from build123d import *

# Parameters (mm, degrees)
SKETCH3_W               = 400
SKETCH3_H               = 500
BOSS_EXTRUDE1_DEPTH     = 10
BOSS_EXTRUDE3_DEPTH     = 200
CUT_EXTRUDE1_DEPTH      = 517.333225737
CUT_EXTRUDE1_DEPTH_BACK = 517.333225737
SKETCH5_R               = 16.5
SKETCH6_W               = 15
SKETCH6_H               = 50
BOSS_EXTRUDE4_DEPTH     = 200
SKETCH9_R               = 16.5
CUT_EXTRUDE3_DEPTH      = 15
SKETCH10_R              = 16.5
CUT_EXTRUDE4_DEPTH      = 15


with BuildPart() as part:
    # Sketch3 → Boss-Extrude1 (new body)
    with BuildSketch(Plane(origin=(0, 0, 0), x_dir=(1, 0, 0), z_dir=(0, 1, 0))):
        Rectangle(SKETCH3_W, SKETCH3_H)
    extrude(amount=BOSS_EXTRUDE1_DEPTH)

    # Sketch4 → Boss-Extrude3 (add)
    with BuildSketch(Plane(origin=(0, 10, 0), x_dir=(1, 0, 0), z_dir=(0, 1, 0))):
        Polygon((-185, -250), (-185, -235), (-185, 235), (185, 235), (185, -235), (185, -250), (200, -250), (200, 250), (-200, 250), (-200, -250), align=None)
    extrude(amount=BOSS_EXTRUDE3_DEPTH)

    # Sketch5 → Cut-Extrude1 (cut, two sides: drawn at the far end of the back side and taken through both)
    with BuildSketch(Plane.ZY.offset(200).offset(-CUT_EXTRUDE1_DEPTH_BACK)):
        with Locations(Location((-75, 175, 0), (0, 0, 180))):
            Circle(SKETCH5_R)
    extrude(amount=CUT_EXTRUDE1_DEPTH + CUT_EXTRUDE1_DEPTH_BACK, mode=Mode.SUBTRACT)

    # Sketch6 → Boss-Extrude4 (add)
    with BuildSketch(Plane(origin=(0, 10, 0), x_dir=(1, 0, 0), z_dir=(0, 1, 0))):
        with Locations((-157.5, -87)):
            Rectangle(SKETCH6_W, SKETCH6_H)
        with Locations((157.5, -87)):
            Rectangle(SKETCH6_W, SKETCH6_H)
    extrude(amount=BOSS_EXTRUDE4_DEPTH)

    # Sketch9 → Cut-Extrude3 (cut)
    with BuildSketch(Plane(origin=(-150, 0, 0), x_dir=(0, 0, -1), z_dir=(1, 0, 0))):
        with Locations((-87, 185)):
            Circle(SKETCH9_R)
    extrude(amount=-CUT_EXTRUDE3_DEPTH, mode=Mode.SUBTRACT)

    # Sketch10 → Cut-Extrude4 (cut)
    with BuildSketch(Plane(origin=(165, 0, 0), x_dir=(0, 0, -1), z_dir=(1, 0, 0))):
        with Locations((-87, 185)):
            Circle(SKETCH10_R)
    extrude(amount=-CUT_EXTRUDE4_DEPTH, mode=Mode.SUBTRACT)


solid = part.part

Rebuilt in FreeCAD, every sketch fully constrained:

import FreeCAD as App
import Part
import Sketcher
from FreeCAD import Vector
Q = App.Units.Quantity

doc = App.newDocument("Part")
params = doc.addObject("Spreadsheet::Sheet", "Params")
for row, (alias, value) in enumerate([
    ("sketch1_width", "400 mm"),
    ("sketch1_height", "500 mm"),
    ("pad1_length", "10 mm"),
    ("sketch2_width", "370 mm"),
    ("sketch2_width2", "15 mm"),
    ("sketch2_height", "485 mm"),
    ("sketch2_height2", "500 mm"),
    ("pad2_length", "200 mm"),
    ("sketch3_diameter", "33 mm"),
    ("sketch4_width", "15 mm"),
    ("sketch4_height", "50 mm"),
    ("pad3_length", "200 mm"),
    ("sketch5_diameter", "33 mm"),
    ("pocket2_length", "15 mm"),
    ("sketch6_diameter", "33 mm"),
    ("pocket3_length", "15 mm"),
], start=1):
    params.set(f"A{row}", alias)
    params.set(f"B{row}", "=" + value)
    params.setAlias(f"B{row}", alias)

body = doc.addObject("PartDesign::Body", "Body")

# Sketch on XZ plane
sketch1 = body.newObject("Sketcher::SketchObject", "Sketch")
sketch1.AttachmentSupport = (doc.getObject("XZ_Plane"), [""])
sketch1.MapMode = "FlatFace"
sketch1.addGeometry([
    Part.LineSegment(Vector(-200, -250, 0), Vector(-200, 250, 0)),
    Part.LineSegment(Vector(-200, 250, 0), Vector(200, 250, 0)),
    Part.LineSegment(Vector(200, 250, 0), Vector(200, -250, 0)),
    Part.LineSegment(Vector(200, -250, 0), Vector(-200, -250, 0)),
], False)
sketch1.addConstraint([
    Sketcher.Constraint("Coincident", 0, 2, 1, 1),
    Sketcher.Constraint("Coincident", 1, 2, 2, 1),
    Sketcher.Constraint("Coincident", 2, 2, 3, 1),
    Sketcher.Constraint("Coincident", 3, 2, 0, 1),
    Sketcher.Constraint("Vertical", 0),
    Sketcher.Constraint("Horizontal", 1),
    Sketcher.Constraint("Vertical", 2),
    Sketcher.Constraint("Horizontal", 3),
    Sketcher.Constraint("Symmetric", 0, 2, 2, 2, -1, 1),
    Sketcher.Constraint("DistanceX", 1, 1, 1, 2, Q("400 mm")),
    Sketcher.Constraint("DistanceY", 0, 1, 0, 2, Q("500 mm")),
])
sketch1.setExpression("Constraints[9]", "Params.sketch1_width")
sketch1.setExpression("Constraints[10]", "Params.sketch1_height")
pad1 = body.newObject("PartDesign::Pad", "Pad")
pad1.Profile = sketch1
pad1.setExpression("Length", "Params.pad1_length")
pad1.Reversed = True

# Sketch on XZ plane
sketch2 = body.newObject("Sketcher::SketchObject", "Sketch001")
sketch2.AttachmentSupport = (doc.getObject("XZ_Plane"), [""])
sketch2.MapMode = "FlatFace"
sketch2.AttachmentOffset = App.Placement(Vector(0, 0, -10), App.Rotation())
sketch2.addGeometry([
    Part.LineSegment(Vector(-185, 250, 0), Vector(-185, -235, 0)),  # 0
    Part.LineSegment(Vector(-185, -235, 0), Vector(185, -235, 0)),  # 1
    Part.LineSegment(Vector(185, -235, 0), Vector(185, 250, 0)),  # 2
    Part.LineSegment(Vector(185, 250, 0), Vector(200, 250, 0)),  # 3
    Part.LineSegment(Vector(200, 250, 0), Vector(200, -250, 0)),  # 4
    Part.LineSegment(Vector(200, -250, 0), Vector(-200, -250, 0)),  # 5
    Part.LineSegment(Vector(-200, -250, 0), Vector(-200, 250, 0)),  # 6
    Part.LineSegment(Vector(-200, 250, 0), Vector(-185, 250, 0)),  # 7
], False)
sketch2.addConstraint([
    Sketcher.Constraint("Coincident", 0, 2, 1, 1),
    Sketcher.Constraint("Coincident", 1, 2, 2, 1),
    Sketcher.Constraint("Coincident", 2, 2, 3, 1),
    Sketcher.Constraint("Coincident", 3, 2, 4, 1),
    Sketcher.Constraint("Coincident", 4, 2, 5, 1),
    Sketcher.Constraint("Coincident", 5, 2, 6, 1),
    Sketcher.Constraint("Coincident", 6, 2, 7, 1),
    Sketcher.Constraint("Coincident", 7, 2, 0, 1),
    Sketcher.Constraint("Vertical", 0),
    Sketcher.Constraint("Horizontal", 1),
    Sketcher.Constraint("Vertical", 2),
    Sketcher.Constraint("Horizontal", 3),
    Sketcher.Constraint("Vertical", 4),
    Sketcher.Constraint("Horizontal", 5),
    Sketcher.Constraint("Vertical", 6),
    Sketcher.Constraint("Horizontal", 7),
    Sketcher.Constraint("Symmetric", 3, 2, 5, 2, -1, 1),
    Sketcher.Constraint("Symmetric", 2, 2, 7, 2, -2),
    Sketcher.Constraint("DistanceX", 1, 1, 1, 2, Q("370 mm")),
    Sketcher.Constraint("DistanceX", 3, 1, 3, 2, Q("15 mm")),
    Sketcher.Constraint("DistanceY", 0, 2, 0, 1, Q("485 mm")),
    Sketcher.Constraint("DistanceY", 4, 2, 4, 1, Q("500 mm")),
])
sketch2.setExpression("Constraints[18]", "Params.sketch2_width")
sketch2.setExpression("Constraints[19]", "Params.sketch2_width2")
sketch2.setExpression("Constraints[20]", "Params.sketch2_height")
sketch2.setExpression("Constraints[21]", "Params.sketch2_height2")
pad2 = body.newObject("PartDesign::Pad", "Pad001")
pad2.Profile = sketch2
pad2.setExpression("Length", "Params.pad2_length")
pad2.Reversed = True

# Sketch on YZ plane
sketch3 = body.newObject("Sketcher::SketchObject", "Sketch002")
sketch3.AttachmentSupport = (doc.getObject("YZ_Plane"), [""])
sketch3.MapMode = "FlatFace"
sketch3.AttachmentOffset = App.Placement(Vector(0, 0, -200), App.Rotation())
sketch3.addGeometry(Part.Circle(Vector(175, -75, 0), Vector(0, 0, 1), 16.5), False)
sketch3.addConstraint([
    Sketcher.Constraint("Diameter", 0, Q("33 mm")),
    Sketcher.Constraint("DistanceX", -1, 1, 0, 3, Q("175 mm")),
    Sketcher.Constraint("DistanceY", 0, 3, -1, 1, Q("75 mm")),
])
sketch3.setExpression("Constraints[0]", "Params.sketch3_diameter")
pocket1 = body.newObject("PartDesign::Pocket", "Pocket")
pocket1.Profile = sketch3
pocket1.Type = "ThroughAll"
pocket1.Midplane = True

# Sketch on XZ plane
sketch4 = body.newObject("Sketcher::SketchObject", "Sketch003")
sketch4.AttachmentSupport = (doc.getObject("XZ_Plane"), [""])
sketch4.MapMode = "FlatFace"
sketch4.AttachmentOffset = App.Placement(Vector(0, 0, -10), App.Rotation())
sketch4.addGeometry([
    Part.LineSegment(Vector(-165, 62, 0), Vector(-165, 112, 0)),  # 0
    Part.LineSegment(Vector(-165, 112, 0), Vector(-150, 112, 0)),  # 1
    Part.LineSegment(Vector(-150, 112, 0), Vector(-150, 62, 0)),  # 2
    Part.LineSegment(Vector(-150, 62, 0), Vector(-165, 62, 0)),  # 3
    Part.LineSegment(Vector(150, 62, 0), Vector(150, 112, 0)),  # 4
    Part.LineSegment(Vector(150, 112, 0), Vector(165, 112, 0)),  # 5
    Part.LineSegment(Vector(165, 112, 0), Vector(165, 62, 0)),  # 6
    Part.LineSegment(Vector(165, 62, 0), Vector(150, 62, 0)),  # 7
], False)
sketch4.addConstraint([
    Sketcher.Constraint("Coincident", 0, 2, 1, 1),
    Sketcher.Constraint("Coincident", 1, 2, 2, 1),
    Sketcher.Constraint("Coincident", 2, 2, 3, 1),
    Sketcher.Constraint("Coincident", 3, 2, 0, 1),
    Sketcher.Constraint("Coincident", 4, 2, 5, 1),
    Sketcher.Constraint("Coincident", 5, 2, 6, 1),
    Sketcher.Constraint("Coincident", 6, 2, 7, 1),
    Sketcher.Constraint("Coincident", 7, 2, 4, 1),
    Sketcher.Constraint("Vertical", 0),
    Sketcher.Constraint("Horizontal", 1),
    Sketcher.Constraint("Vertical", 2),
    Sketcher.Constraint("Horizontal", 3),
    Sketcher.Constraint("Vertical", 4),
    Sketcher.Constraint("Horizontal", 5),
    Sketcher.Constraint("Vertical", 6),
    Sketcher.Constraint("Horizontal", 7),
    Sketcher.Constraint("Symmetric", 1, 2, 4, 2, -2),
    Sketcher.Constraint("Symmetric", 3, 2, 6, 2, -2),
    Sketcher.Constraint("DistanceX", 1, 1, 1, 2, Q("15 mm")),
    Sketcher.Constraint("DistanceY", 0, 1, 0, 2, Q("50 mm")),
    Sketcher.Constraint("DistanceX", 0, 2, -1, 1, Q("165 mm")),
    Sketcher.Constraint("DistanceY", -1, 1, 0, 2, Q("112 mm")),
])
sketch4.setExpression("Constraints[18]", "Params.sketch4_width")
sketch4.setExpression("Constraints[19]", "Params.sketch4_height")
pad3 = body.newObject("PartDesign::Pad", "Pad002")
pad3.Profile = sketch4
pad3.setExpression("Length", "Params.pad3_length")
pad3.Reversed = True

# Sketch on YZ plane
sketch5 = body.newObject("Sketcher::SketchObject", "Sketch004")
sketch5.AttachmentSupport = (doc.getObject("YZ_Plane"), [""])
sketch5.MapMode = "FlatFace"
sketch5.AttachmentOffset = App.Placement(Vector(0, 0, -150), App.Rotation())
sketch5.addGeometry(Part.Circle(Vector(185, 87, 0), Vector(0, 0, 1), 16.5), False)
sketch5.addConstraint([
    Sketcher.Constraint("Diameter", 0, Q("33 mm")),
    Sketcher.Constraint("DistanceX", -1, 1, 0, 3, Q("185 mm")),
    Sketcher.Constraint("DistanceY", -1, 1, 0, 3, Q("87 mm")),
])
sketch5.setExpression("Constraints[0]", "Params.sketch5_diameter")
pocket2 = body.newObject("PartDesign::Pocket", "Pocket001")
pocket2.Profile = sketch5
pocket2.setExpression("Length", "Params.pocket2_length")

# Sketch on YZ plane
sketch6 = body.newObject("Sketcher::SketchObject", "Sketch005")
sketch6.AttachmentSupport = (doc.getObject("YZ_Plane"), [""])
sketch6.MapMode = "FlatFace"
sketch6.AttachmentOffset = App.Placement(Vector(0, 0, 165), App.Rotation())
sketch6.addGeometry(Part.Circle(Vector(185, 87, 0), Vector(0, 0, 1), 16.5), False)
sketch6.addConstraint([
    Sketcher.Constraint("Diameter", 0, Q("33 mm")),
    Sketcher.Constraint("DistanceX", -1, 1, 0, 3, Q("185 mm")),
    Sketcher.Constraint("DistanceY", -1, 1, 0, 3, Q("87 mm")),
])
sketch6.setExpression("Constraints[0]", "Params.sketch6_diameter")
pocket3 = body.newObject("PartDesign::Pocket", "Pocket002")
pocket3.Profile = sketch6
pocket3.setExpression("Length", "Params.pocket3_length")

doc.recompute()
